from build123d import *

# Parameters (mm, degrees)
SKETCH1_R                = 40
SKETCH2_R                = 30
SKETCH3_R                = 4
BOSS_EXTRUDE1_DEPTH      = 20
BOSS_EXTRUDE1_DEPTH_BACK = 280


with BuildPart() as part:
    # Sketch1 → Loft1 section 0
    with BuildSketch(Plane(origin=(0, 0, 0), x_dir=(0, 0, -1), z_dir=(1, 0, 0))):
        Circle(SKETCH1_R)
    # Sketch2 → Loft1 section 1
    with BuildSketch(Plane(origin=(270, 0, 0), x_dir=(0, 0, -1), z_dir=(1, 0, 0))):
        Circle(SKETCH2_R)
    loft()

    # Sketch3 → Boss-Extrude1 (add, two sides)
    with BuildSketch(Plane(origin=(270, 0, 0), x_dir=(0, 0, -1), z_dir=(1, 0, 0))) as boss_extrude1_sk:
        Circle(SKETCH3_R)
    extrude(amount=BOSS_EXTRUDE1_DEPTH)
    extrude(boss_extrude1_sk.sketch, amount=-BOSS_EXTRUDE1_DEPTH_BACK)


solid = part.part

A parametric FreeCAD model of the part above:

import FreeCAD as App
import Part
import Sketcher
Q = App.Units.Quantity

doc = App.newDocument("Part")
body = doc.addObject("PartDesign::Body", "Body")

# Sketch on YZ plane
sketch1 = doc.addObject("Sketcher::SketchObject", "Sketch")
body.addObject(sketch1)
sketch1.AttachmentSupport = (doc.YZ_Plane, [""])
sketch1.MapMode = "FlatFace"
sketch1.addGeometry(Part.Circle(App.Vector(0, 0, 0), App.Vector(0, 0, 1), 40), False)
sketch1.addConstraint(Sketcher.Constraint("Coincident", 0, 3, -1, 1))
sketch1.addConstraint(Sketcher.Constraint("Diameter", 0, Q("80 mm")))

# Sketch on YZ plane
sketch2 = doc.addObject("Sketcher::SketchObject", "Sketch001")
body.addObject(sketch2)
sketch2.AttachmentSupport = (doc.YZ_Plane, [""])
sketch2.MapMode = "FlatFace"
sketch2.AttachmentOffset = App.Placement(App.Vector(0, 0, 270), App.Rotation())
sketch2.addGeometry(Part.Circle(App.Vector(0, 0, 0), App.Vector(0, 0, 1), 30), False)
sketch2.addConstraint(Sketcher.Constraint("Coincident", 0, 3, -1, 1))
sketch2.addConstraint(Sketcher.Constraint("Diameter", 0, Q("60 mm")))

additiveloft = doc.addObject("PartDesign::AdditiveLoft", "AdditiveLoft")
body.addObject(additiveloft)
additiveloft.Profile = sketch1
additiveloft.Sections = [sketch2]

# Sketch on YZ plane
sketch3 = doc.addObject("Sketcher::SketchObject", "Sketch002")
body.addObject(sketch3)
sketch3.AttachmentSupport = (doc.YZ_Plane, [""])
sketch3.MapMode = "FlatFace"
sketch3.AttachmentOffset = App.Placement(App.Vector(0, 0, 270), App.Rotation())
sketch3.addGeometry(Part.Circle(App.Vector(0, 0, 0), App.Vector(0, 0, 1), 4), False)
sketch3.addConstraint(Sketcher.Constraint("Coincident", 0, 3, -1, 1))
sketch3.addConstraint(Sketcher.Constraint("Diameter", 0, Q("8 mm")))
pad1 = doc.addObject("PartDesign::Pad", "Pad")
body.addObject(pad1)
pad1.Profile = sketch3
pad1.Type = "TwoLengths"
pad1.Length = 20
pad1.Length2 = 280

doc.recompute()
